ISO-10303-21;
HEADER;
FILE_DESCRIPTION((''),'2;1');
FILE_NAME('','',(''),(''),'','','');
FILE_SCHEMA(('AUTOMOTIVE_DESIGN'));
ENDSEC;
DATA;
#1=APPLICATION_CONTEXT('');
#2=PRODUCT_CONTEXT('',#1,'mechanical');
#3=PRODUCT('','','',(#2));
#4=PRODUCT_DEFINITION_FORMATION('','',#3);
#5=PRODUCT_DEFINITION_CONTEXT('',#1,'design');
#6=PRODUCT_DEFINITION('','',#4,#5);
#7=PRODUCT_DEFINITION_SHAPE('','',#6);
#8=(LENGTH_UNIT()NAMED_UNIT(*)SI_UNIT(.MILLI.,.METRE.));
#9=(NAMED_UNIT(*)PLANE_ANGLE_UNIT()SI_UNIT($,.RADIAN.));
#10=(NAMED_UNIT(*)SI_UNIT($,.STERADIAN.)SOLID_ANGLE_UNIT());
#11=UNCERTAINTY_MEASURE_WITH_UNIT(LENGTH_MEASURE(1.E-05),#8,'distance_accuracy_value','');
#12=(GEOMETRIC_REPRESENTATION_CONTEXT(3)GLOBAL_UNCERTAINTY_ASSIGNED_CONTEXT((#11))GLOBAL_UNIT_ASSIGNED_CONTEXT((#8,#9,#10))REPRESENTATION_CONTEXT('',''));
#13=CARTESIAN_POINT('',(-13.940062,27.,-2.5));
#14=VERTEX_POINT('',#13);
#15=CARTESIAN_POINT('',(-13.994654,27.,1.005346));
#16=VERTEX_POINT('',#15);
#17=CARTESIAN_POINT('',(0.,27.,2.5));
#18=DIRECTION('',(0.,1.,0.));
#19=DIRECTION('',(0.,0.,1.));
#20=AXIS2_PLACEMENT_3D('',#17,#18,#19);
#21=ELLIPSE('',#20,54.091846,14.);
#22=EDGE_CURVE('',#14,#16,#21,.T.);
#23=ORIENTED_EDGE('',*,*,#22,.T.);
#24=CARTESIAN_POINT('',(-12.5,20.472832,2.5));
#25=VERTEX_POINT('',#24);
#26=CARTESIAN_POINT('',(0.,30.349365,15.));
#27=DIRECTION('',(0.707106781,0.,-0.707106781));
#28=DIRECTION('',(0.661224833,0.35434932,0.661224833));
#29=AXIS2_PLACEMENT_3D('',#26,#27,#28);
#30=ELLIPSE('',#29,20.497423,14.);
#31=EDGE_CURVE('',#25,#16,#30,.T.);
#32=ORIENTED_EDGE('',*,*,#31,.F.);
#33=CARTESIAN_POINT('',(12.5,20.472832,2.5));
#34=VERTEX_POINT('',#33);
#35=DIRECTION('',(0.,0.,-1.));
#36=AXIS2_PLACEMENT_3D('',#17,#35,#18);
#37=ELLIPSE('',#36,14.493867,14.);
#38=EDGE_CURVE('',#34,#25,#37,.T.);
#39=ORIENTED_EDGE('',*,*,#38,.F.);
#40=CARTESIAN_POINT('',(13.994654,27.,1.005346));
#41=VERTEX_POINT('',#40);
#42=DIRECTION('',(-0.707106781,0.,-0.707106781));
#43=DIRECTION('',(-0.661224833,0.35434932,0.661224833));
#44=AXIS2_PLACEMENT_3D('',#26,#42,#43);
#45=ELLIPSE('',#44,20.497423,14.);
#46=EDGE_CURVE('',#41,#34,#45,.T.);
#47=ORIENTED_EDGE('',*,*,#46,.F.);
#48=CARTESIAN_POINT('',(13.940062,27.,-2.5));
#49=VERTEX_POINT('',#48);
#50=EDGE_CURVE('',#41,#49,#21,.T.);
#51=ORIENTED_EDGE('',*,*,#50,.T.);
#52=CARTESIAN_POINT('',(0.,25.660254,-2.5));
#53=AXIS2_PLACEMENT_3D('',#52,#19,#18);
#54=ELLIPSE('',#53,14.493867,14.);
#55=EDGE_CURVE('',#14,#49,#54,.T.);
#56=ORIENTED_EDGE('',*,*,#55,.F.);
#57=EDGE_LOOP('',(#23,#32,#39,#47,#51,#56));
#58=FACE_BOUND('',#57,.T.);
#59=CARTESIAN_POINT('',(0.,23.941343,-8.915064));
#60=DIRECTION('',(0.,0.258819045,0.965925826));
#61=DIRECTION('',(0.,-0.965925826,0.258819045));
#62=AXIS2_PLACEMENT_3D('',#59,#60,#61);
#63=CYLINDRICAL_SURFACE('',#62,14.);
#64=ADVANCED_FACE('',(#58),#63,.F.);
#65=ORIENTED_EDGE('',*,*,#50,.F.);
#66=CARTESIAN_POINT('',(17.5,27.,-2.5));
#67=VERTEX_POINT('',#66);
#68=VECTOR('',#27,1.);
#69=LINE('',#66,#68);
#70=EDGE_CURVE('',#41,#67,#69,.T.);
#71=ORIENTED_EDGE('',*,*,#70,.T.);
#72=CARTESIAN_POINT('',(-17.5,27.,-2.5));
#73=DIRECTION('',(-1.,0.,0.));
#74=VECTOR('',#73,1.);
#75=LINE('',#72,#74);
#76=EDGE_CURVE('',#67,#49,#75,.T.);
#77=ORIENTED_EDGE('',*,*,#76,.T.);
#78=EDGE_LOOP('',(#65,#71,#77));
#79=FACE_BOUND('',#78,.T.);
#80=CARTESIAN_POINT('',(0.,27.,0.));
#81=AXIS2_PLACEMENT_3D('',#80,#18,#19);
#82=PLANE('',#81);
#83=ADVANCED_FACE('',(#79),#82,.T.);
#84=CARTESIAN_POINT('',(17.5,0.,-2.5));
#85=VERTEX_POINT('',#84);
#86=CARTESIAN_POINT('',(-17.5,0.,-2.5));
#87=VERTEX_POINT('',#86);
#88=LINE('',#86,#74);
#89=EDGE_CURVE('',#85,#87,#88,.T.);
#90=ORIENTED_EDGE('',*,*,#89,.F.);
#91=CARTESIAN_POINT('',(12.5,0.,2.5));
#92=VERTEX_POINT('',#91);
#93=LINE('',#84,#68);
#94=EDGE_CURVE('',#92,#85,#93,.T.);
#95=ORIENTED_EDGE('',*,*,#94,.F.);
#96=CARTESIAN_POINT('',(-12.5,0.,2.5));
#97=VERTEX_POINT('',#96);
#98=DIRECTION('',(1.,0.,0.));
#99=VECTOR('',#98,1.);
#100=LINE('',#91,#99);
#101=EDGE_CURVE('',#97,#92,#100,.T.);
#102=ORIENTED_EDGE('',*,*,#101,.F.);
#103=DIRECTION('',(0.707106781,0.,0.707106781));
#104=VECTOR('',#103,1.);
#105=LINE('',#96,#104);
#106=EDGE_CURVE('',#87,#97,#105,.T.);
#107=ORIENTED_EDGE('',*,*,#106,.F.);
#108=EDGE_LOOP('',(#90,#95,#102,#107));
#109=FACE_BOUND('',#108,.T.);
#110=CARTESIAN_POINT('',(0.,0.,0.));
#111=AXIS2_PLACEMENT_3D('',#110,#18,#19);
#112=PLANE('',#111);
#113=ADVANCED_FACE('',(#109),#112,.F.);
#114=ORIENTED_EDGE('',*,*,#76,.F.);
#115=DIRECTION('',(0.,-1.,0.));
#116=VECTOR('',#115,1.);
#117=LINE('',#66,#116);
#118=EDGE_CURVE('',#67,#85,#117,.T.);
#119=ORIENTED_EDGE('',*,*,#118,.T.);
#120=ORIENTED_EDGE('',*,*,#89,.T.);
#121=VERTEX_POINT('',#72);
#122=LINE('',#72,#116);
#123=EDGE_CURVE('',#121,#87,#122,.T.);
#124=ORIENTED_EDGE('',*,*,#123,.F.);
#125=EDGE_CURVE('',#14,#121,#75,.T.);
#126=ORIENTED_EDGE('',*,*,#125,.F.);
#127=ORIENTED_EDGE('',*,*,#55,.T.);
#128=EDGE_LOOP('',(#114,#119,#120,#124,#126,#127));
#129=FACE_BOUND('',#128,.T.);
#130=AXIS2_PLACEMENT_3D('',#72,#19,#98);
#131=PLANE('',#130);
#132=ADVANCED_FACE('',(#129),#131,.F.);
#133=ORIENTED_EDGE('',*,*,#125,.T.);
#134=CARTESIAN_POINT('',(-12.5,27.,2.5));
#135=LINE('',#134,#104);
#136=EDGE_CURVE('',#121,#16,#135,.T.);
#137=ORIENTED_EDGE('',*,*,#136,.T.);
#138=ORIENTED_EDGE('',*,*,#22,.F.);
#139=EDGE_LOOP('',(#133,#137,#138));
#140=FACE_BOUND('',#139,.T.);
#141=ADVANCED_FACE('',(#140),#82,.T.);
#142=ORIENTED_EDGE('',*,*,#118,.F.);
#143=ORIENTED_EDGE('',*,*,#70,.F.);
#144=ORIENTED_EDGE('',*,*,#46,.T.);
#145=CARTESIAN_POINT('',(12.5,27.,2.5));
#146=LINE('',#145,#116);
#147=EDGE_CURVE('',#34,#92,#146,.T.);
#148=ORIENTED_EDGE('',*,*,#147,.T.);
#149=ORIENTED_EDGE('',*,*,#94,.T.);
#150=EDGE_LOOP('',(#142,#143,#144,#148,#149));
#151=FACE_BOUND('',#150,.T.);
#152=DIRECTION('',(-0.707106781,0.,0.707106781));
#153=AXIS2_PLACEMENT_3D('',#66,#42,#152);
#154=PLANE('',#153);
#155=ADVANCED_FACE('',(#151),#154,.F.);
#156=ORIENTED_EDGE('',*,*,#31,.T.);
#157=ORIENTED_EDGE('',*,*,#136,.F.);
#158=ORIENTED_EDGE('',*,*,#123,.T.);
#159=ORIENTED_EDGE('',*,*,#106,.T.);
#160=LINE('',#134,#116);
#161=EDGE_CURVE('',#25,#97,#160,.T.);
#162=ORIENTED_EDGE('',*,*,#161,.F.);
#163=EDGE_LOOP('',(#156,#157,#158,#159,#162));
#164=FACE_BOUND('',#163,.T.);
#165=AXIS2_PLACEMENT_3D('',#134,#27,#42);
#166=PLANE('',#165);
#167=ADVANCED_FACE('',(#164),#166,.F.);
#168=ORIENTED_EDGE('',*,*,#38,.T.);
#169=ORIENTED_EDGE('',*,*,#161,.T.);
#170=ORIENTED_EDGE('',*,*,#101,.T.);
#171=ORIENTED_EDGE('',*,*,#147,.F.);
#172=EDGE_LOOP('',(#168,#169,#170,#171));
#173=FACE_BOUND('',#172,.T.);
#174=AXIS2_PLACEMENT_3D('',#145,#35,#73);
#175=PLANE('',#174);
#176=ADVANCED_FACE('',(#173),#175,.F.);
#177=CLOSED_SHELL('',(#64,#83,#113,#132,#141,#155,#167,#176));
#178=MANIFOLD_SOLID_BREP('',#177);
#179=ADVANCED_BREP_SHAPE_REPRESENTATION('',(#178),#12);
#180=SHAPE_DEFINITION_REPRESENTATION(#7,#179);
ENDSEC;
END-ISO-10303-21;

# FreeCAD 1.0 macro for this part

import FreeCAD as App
import Part
import Sketcher

V = App.Vector

doc = App.newDocument("Part")
body = doc.addObject("PartDesign::Body", "Body")

sketch1 = doc.addObject("Sketcher::SketchObject", "Sketch")
body.addObject(sketch1)
sketch1.AttachmentSupport = (doc.XZ_Plane, [""])
sketch1.MapMode = "FlatFace"
sketch1.addGeometry([
    Part.LineSegment(V(18, -2, 0), V(-18, -2, 0)),
    Part.LineSegment(V(-18, -2, 0), V(-12, 2, 0)),
    Part.LineSegment(V(-12, 2, 0), V(12, 2, 0)),
    Part.LineSegment(V(12, 2, 0), V(18, -2, 0)),
], False)
sketch1.addConstraint([
    Sketcher.Constraint("Coincident", 0, 2, 1, 1),
    Sketcher.Constraint("Coincident", 1, 2, 2, 1),
    Sketcher.Constraint("Coincident", 2, 2, 3, 1),
    Sketcher.Constraint("Coincident", 3, 2, 0, 1),
    Sketcher.Constraint("Horizontal", 0),
    Sketcher.Constraint("Horizontal", 2),
    Sketcher.Constraint("Perpendicular", 1, 3),
    Sketcher.Constraint("Equal", 1, 3),
    Sketcher.Constraint("DistanceX", 0, 2, 0, 1, 35.0),
    Sketcher.Constraint("DistanceX", 2, 1, 2, 2, 25.0),
    Sketcher.Constraint("DistanceX", 0, 2, -1, 1, 17.5),
    Sketcher.Constraint("DistanceY", 0, 2, -1, 1, 2.5),
])
pad1 = doc.addObject("PartDesign::Pad", "Pad")
body.addObject(pad1)
pad1.Profile = sketch1
pad1.Length = 27
pad1.Reversed = True

sketch2 = doc.addObject("Sketcher::SketchObject", "Sketch001")
body.addObject(sketch2)
sketch2.Placement = App.Placement(V(0, 0.625, 2.332532), App.Rotation(V(1, 0, 0), V(0, 0.965925826, -0.258819045), V(0, 0.258819045, 0.965925826), "ZXY"))
sketch2.addGeometry(Part.Circle(V(0, 25, 0), V(0, 0, 1), 14), False)
sketch2.addConstraint([
    Sketcher.Constraint("PointOnObject", 0, 3, -2),
    Sketcher.Constraint("Diameter", 0, 28.0),
    Sketcher.Constraint("DistanceY", -1, 1, 0, 3, 25.43295),
])
pocket1 = doc.addObject("PartDesign::Pocket", "Pocket")
body.addObject(pocket1)
pocket1.Profile = sketch2
pocket1.Type = "ThroughAll"
pocket1.Midplane = True

doc.recompute()
